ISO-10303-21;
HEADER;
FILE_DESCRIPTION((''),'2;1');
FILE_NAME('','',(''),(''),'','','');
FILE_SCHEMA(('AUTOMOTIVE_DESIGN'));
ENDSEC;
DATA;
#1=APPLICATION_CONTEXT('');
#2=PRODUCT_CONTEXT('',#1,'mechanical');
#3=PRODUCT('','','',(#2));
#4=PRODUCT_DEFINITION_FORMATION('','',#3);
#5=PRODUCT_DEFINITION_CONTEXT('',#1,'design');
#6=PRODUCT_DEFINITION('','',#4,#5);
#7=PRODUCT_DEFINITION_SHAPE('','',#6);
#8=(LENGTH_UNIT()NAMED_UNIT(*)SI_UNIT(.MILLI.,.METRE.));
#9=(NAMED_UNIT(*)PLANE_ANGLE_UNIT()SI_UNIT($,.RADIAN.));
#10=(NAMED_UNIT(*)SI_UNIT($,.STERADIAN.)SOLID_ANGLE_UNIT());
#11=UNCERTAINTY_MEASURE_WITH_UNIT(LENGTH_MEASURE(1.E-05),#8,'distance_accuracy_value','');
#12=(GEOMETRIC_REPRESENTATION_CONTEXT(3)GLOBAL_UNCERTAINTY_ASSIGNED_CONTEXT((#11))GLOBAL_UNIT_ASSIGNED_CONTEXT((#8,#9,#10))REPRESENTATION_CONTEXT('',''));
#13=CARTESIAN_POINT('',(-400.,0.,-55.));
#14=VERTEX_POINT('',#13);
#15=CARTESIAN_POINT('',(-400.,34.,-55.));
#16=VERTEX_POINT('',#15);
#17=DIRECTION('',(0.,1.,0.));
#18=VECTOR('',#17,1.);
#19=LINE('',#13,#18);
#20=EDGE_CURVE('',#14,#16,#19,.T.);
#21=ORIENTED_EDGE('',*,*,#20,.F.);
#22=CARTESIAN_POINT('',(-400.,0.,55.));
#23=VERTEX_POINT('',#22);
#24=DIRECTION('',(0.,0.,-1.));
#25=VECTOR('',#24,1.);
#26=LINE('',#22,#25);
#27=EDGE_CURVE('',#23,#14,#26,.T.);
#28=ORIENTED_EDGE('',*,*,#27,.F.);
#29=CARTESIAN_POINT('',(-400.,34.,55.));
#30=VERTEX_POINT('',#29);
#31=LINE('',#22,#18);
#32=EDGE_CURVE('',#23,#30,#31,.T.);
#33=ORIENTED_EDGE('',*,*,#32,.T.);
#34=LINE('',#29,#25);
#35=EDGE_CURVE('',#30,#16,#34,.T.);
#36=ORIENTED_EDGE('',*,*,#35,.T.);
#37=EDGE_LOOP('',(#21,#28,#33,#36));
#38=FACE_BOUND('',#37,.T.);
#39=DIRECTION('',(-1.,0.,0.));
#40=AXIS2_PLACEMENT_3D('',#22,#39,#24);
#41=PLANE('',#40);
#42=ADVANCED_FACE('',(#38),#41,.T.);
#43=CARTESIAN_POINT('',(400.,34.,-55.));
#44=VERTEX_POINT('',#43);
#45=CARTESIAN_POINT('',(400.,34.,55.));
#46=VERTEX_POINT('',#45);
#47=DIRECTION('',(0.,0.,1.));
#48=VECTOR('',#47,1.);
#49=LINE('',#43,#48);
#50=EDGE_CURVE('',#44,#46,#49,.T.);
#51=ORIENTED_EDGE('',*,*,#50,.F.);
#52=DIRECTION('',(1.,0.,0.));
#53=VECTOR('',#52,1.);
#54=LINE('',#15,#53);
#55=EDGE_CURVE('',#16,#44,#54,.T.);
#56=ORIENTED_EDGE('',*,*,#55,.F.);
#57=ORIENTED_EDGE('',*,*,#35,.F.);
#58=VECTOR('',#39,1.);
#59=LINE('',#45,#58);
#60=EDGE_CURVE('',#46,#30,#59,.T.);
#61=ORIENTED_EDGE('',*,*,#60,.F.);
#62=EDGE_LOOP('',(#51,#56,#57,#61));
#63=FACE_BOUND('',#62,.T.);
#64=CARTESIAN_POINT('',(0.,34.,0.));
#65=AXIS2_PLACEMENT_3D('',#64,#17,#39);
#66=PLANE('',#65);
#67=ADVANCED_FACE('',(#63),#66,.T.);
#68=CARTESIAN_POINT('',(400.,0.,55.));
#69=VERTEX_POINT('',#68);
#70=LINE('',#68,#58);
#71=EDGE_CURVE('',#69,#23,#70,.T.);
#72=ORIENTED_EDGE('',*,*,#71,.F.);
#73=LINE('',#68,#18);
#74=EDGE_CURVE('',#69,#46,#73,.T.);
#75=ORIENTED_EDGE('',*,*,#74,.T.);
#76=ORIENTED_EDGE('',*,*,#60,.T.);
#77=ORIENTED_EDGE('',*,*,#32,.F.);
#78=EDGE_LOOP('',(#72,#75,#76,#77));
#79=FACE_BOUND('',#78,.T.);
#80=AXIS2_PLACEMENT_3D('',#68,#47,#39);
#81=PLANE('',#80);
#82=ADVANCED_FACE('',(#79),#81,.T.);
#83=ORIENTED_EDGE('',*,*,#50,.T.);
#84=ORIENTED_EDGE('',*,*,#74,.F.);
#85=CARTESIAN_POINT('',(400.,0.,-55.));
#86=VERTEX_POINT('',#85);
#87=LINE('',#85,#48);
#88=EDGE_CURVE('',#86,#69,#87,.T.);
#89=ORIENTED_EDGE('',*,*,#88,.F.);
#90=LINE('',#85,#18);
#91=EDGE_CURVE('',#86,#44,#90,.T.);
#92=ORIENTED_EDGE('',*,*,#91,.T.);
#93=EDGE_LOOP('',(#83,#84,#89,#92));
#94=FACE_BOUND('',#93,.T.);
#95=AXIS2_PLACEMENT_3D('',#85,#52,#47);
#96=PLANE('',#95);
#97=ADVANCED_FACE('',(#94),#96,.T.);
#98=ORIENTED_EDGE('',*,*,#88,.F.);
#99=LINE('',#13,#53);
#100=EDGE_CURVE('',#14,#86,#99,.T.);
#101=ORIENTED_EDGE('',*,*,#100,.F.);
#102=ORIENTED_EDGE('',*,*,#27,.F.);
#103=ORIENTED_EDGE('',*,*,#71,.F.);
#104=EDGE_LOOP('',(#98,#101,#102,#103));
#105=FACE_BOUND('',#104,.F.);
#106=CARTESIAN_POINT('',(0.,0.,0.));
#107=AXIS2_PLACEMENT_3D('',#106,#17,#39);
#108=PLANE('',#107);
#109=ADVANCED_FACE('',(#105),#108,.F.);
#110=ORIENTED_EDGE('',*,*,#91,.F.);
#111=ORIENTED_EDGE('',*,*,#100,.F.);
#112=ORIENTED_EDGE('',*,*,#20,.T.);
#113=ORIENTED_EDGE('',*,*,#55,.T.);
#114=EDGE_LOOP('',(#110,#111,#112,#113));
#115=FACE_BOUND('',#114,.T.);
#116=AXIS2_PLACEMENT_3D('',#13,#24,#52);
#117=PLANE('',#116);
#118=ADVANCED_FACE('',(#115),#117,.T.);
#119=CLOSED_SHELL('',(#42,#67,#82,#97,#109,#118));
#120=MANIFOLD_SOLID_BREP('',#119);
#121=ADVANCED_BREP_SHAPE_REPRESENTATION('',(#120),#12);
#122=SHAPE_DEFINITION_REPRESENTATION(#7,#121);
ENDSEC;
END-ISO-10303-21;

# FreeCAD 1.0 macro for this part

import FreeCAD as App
import Part
import Sketcher
from FreeCAD import Vector
Q = App.Units.Quantity


def add_polygon(sketch, points):
    """Adds a closed chain of lines whose ends are joined by coincident constraints."""
    first, n = sketch.GeometryCount, len(points)
    for a, b in zip(points, points[1:] + points[:1]):
        sketch.addGeometry(Part.LineSegment(App.Vector(*a, 0), App.Vector(*b, 0)), False)
    for i in range(n):
        sketch.addConstraint(Sketcher.Constraint("Coincident", first + i, 2, first + (i + 1) % n, 1))

doc = App.newDocument("Part")
body = doc.addObject("PartDesign::Body", "Body")

sketch1 = doc.addObject("Sketcher::SketchObject", "Sketch")
body.addObject(sketch1)
sketch1.AttachmentSupport = (doc.XZ_Plane, [""])
sketch1.MapMode = "FlatFace"
add_polygon(sketch1, [(-400, 55), (400, 55), (400, -55), (-400, -55)])
sketch1.addConstraint(Sketcher.Constraint("Horizontal", 0))
sketch1.addConstraint(Sketcher.Constraint("Vertical", 1))
sketch1.addConstraint(Sketcher.Constraint("Horizontal", 2))
sketch1.addConstraint(Sketcher.Constraint("Vertical", 3))
sketch1.addConstraint(Sketcher.Constraint("Symmetric", 0, 2, 2, 2, -1, 1))
sketch1.addConstraint(Sketcher.Constraint("DistanceX", 0, 1, 0, 2, Q("800 mm")))
sketch1.addConstraint(Sketcher.Constraint("DistanceY", 1, 2, 1, 1, Q("110 mm")))
pad1 = doc.addObject("PartDesign::Pad", "Pad")
body.addObject(pad1)
pad1.Profile = sketch1
pad1.Length = 34
pad1.Reversed = True

doc.recompute()
